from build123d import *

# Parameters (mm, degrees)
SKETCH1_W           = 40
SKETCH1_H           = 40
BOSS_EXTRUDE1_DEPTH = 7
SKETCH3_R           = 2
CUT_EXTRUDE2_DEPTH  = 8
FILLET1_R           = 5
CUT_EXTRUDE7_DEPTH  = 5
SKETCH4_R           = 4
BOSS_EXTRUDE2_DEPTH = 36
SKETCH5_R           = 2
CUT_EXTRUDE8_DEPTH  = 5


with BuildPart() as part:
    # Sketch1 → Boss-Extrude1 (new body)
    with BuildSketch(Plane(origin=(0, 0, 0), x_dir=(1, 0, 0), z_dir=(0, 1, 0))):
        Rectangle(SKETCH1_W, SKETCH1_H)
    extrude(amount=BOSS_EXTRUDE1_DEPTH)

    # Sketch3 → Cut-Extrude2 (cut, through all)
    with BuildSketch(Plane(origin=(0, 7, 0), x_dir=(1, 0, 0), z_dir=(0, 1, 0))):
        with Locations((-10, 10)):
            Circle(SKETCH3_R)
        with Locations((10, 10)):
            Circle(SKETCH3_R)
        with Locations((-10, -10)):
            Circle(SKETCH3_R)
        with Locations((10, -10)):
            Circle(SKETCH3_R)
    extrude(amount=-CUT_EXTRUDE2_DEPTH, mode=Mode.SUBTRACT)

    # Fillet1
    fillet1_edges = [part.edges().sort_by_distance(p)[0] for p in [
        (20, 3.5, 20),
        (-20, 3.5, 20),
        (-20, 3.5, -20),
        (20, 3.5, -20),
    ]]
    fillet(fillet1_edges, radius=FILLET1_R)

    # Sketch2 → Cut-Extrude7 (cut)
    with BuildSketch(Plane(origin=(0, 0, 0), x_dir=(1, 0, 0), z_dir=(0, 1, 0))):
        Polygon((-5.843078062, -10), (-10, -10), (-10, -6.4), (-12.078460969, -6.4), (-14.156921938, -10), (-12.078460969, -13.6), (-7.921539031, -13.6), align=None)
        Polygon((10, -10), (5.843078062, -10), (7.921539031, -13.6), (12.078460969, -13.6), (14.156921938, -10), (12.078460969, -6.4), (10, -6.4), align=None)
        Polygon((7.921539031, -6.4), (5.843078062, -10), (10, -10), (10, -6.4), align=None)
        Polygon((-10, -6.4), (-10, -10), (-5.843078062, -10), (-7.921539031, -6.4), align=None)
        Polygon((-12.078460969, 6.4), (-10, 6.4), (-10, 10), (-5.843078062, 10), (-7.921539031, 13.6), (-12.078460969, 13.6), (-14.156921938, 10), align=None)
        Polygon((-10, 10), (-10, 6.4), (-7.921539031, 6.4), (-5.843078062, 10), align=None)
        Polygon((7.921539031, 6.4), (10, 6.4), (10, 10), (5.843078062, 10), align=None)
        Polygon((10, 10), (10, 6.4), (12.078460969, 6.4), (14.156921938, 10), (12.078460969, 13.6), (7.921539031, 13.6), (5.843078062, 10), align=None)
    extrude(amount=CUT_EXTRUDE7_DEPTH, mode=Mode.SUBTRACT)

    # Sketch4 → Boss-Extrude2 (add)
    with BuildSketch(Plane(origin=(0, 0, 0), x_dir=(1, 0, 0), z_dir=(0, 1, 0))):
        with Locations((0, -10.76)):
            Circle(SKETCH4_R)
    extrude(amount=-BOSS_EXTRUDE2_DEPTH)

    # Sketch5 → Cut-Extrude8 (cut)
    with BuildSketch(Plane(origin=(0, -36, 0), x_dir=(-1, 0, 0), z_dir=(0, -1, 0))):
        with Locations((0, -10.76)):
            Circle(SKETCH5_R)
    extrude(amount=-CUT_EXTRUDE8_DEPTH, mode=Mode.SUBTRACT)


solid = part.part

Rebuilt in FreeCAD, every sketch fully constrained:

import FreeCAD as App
import Part
import Sketcher

V = App.Vector
Q = App.Units.Quantity


def edges_at(feature, points):
    """Names of the edges that pass closest to the given points."""
    edges = feature.Shape.Edges
    near = lambda p: min(range(len(edges)), key=lambda i: edges[i].distToShape(Part.Vertex(*p))[0])
    return sorted({f"Edge{near(p) + 1}" for p in points})


def add_polygon(sketch, points):
    """Adds a closed chain of lines whose ends are joined by coincident constraints."""
    first, n = sketch.GeometryCount, len(points)
    for a, b in zip(points, points[1:] + points[:1]):
        sketch.addGeometry(Part.LineSegment(App.Vector(*a, 0), App.Vector(*b, 0)), False)
    for i in range(n):
        sketch.addConstraint(Sketcher.Constraint("Coincident", first + i, 2, first + (i + 1) % n, 1))

doc = App.newDocument("Part")
params = doc.addObject("Spreadsheet::Sheet", "Params")
for row, (alias, value) in enumerate([
    ("sketch1_width", "40 mm"),
    ("pad1_length", "7 mm"),
    ("sketch2_diameter", "4 mm"),
    ("fillet_radius", "5 mm"),
    ("pocket2_length", "5 mm"),
    ("sketch4_diameter", "8 mm"),
    ("pad2_length", "36 mm"),
    ("sketch5_diameter", "4 mm"),
    ("pocket3_length", "5 mm"),
], start=1):
    params.set(f"A{row}", alias)
    params.set(f"B{row}", "=" + value)
    params.setAlias(f"B{row}", alias)

body = doc.addObject("PartDesign::Body", "Body")

# Sketch on XZ plane
sketch1 = body.newObject("Sketcher::SketchObject", "Sketch")
sketch1.AttachmentSupport = (doc.getObject("XZ_Plane"), [""])
sketch1.MapMode = "FlatFace"
add_polygon(sketch1, [(-20, -20), (-20, 20), (20, 20), (20, -20)])  # lines 0-3
sketch1.addConstraint([
    Sketcher.Constraint("Vertical", 0),
    Sketcher.Constraint("Horizontal", 1),
    Sketcher.Constraint("Vertical", 2),
    Sketcher.Constraint("Horizontal", 3),
    Sketcher.Constraint("Symmetric", 0, 2, 2, 2, -1, 1),
    Sketcher.Constraint("Equal", 3, 0),
    Sketcher.Constraint("DistanceX", 1, 1, 1, 2, Q("40 mm")),
])
sketch1.setExpression("Constraints[10]", "Params.sketch1_width")
pad1 = body.newObject("PartDesign::Pad", "Pad")
pad1.Profile = sketch1
pad1.setExpression("Length", "Params.pad1_length")
pad1.Reversed = True

# Sketch on XZ plane
sketch2 = body.newObject("Sketcher::SketchObject", "Sketch001")
sketch2.AttachmentSupport = (doc.getObject("XZ_Plane"), [""])
sketch2.MapMode = "FlatFace"
sketch2.AttachmentOffset = App.Placement(V(0, 0, -7), App.Rotation())
sketch2.addGeometry([
    Part.Circle(V(-10, -10, 0), V(0, 0, 1), 2),
    Part.Circle(V(10, -10, 0), V(0, 0, 1), 2),
    Part.Circle(V(-10, 10, 0), V(0, 0, 1), 2),
    Part.Circle(V(10, 10, 0), V(0, 0, 1), 2),
], False)
sketch2.addConstraint([
    Sketcher.Constraint("Equal", 0, 1),
    Sketcher.Constraint("Equal", 1, 2),
    Sketcher.Constraint("Equal", 2, 3),
    Sketcher.Constraint("Symmetric", 1, 3, 2, 3, -1, 1),
    Sketcher.Constraint("Symmetric", 0, 3, 3, 3, -1, 1),
    Sketcher.Constraint("Symmetric", 0, 3, 1, 3, -2),
    Sketcher.Constraint("Diameter", 0, Q("4 mm")),
    Sketcher.Constraint("DistanceX", 0, 3, -1, 1, Q("10 mm")),
    Sketcher.Constraint("DistanceY", 0, 3, -1, 1, Q("10 mm")),
])
sketch2.setExpression("Constraints[6]", "Params.sketch2_diameter")
pocket1 = body.newObject("PartDesign::Pocket", "Pocket")
pocket1.Profile = sketch2
pocket1.Type = "ThroughAll"
pocket1.Reversed = True
doc.recompute()

fillet = body.newObject("PartDesign::Fillet", "Fillet")
fillet.Base = (pocket1, edges_at(pocket1, [
    (20, 3.5, 20),
    (-20, 3.5, 20),
    (-20, 3.5, -20),
    (20, 3.5, -20),
]))
fillet.setExpression("Radius", "Params.fillet_radius")

# Sketch on XZ plane
sketch3 = body.newObject("Sketcher::SketchObject", "Sketch002")
sketch3.AttachmentSupport = (doc.getObject("XZ_Plane"), [""])
sketch3.MapMode = "FlatFace"
add_polygon(sketch3, [(-12.078461, 6.4), (-14.156922, 10), (-12.078461, 13.6), (-7.921539, 13.6), (-5.843078, 10), (-7.921539, 6.4)])  # lines 0-5
add_polygon(sketch3, [(5.843078, 10), (7.921539, 13.6), (12.078461, 13.6), (14.156922, 10), (12.078461, 6.4), (7.921539, 6.4)])  # lines 6-11
add_polygon(sketch3, [(-12.078461, -6.4), (-7.921539, -6.4), (-5.843078, -10), (-7.921539, -13.6), (-12.078461, -13.6), (-14.156922, -10)])  # lines 12-17
add_polygon(sketch3, [(7.921539, -6.4), (12.078461, -6.4), (14.156922, -10), (12.078461, -13.6), (7.921539, -13.6), (5.843078, -10)])  # lines 18-23
sketch3.addConstraint([
    Sketcher.Constraint("Horizontal", 2),
    Sketcher.Constraint("Horizontal", 5),
    Sketcher.Constraint("Horizontal", 7),
    Sketcher.Constraint("Horizontal", 10),
    Sketcher.Constraint("Horizontal", 12),
    Sketcher.Constraint("Horizontal", 15),
    Sketcher.Constraint("Horizontal", 18),
    Sketcher.Constraint("Horizontal", 21),
    Sketcher.Constraint("Symmetric", 10, 2, 12, 2, -1, 1),
    Sketcher.Constraint("Symmetric", 11, 2, 13, 2, -1, 1),
    Sketcher.Constraint("Symmetric", 6, 2, 14, 2, -1, 1),
    Sketcher.Constraint("Symmetric", 8, 2, 16, 2, -1, 1),
    Sketcher.Constraint("Symmetric", 5, 2, 18, 2, -1, 1),
    Sketcher.Constraint("Symmetric", 0, 2, 19, 2, -1, 1),
    Sketcher.Constraint("Symmetric", 1, 2, 20, 2, -1, 1),
    Sketcher.Constraint("Symmetric", 3, 2, 22, 2, -1, 1),
    Sketcher.Constraint("Symmetric", 2, 2, 6, 2, -2),
    Sketcher.Constraint("Symmetric", 0, 2, 8, 2, -2),
    Sketcher.Constraint("Symmetric", 5, 2, 9, 2, -2),
    Sketcher.Constraint("Symmetric", 3, 2, 11, 2, -2),
    Sketcher.Constraint("Parallel", 0, 3),
    Sketcher.Constraint("Parallel", 1, 4),
    Sketcher.Constraint("Parallel", 4, 6),
    Sketcher.Constraint("Parallel", 3, 8),
    Sketcher.Constraint("Parallel", 8, 11),
    Sketcher.Constraint("Parallel", 13, 16),
    Sketcher.Constraint("Parallel", 14, 17),
    Sketcher.Constraint("Parallel", 19, 22),
    Sketcher.Constraint("Parallel", 20, 23),
    Sketcher.Constraint("Horizontal", 0, 2, 3, 2),
    Sketcher.Constraint("Vertical", 2, 2, 4, 2),
    Sketcher.Constraint("Angle", 0, Q("120 deg")),
    Sketcher.Constraint("DistanceY", -1, 1, 0, 2, Q("10 mm")),
    Sketcher.Constraint("DistanceX", 1, 2, 6, 2, Q("20 mm")),
    Sketcher.Constraint("DistanceY", -1, 1, 1, 2, Q("13.6 mm")),
    Sketcher.Constraint("DistanceX", 2, 1, 2, 2, Q("4.156922 mm")),
])
pocket2 = body.newObject("PartDesign::Pocket", "Pocket001")
pocket2.Profile = sketch3
pocket2.setExpression("Length", "Params.pocket2_length")

# Sketch on XZ plane
sketch4 = body.newObject("Sketcher::SketchObject", "Sketch003")
sketch4.AttachmentSupport = (doc.getObject("XZ_Plane"), [""])
sketch4.MapMode = "FlatFace"
sketch4.addGeometry(Part.Circle(V(0, 10.76, 0), V(0, 0, 1), 4), False)
sketch4.addConstraint([
    Sketcher.Constraint("PointOnObject", 0, 3, -2),
    Sketcher.Constraint("Diameter", 0, Q("8 mm")),
    Sketcher.Constraint("DistanceY", -1, 1, 0, 3, Q("10.76 mm")),
])
sketch4.setExpression("Constraints[1]", "Params.sketch4_diameter")
pad2 = body.newObject("PartDesign::Pad", "Pad001")
pad2.Profile = sketch4
pad2.setExpression("Length", "Params.pad2_length")

# Sketch on XZ plane
sketch5 = body.newObject("Sketcher::SketchObject", "Sketch004")
sketch5.AttachmentSupport = (doc.getObject("XZ_Plane"), [""])
sketch5.MapMode = "FlatFace"
sketch5.AttachmentOffset = App.Placement(V(0, 0, 36), App.Rotation())
sketch5.addGeometry(Part.Circle(V(0, 10.76, 0), V(0, 0, 1), 2), False)
sketch5.addConstraint([
    Sketcher.Constraint("PointOnObject", 0, 3, -2),
    Sketcher.Constraint("Diameter", 0, Q("4 mm")),
    Sketcher.Constraint("DistanceY", -1, 1, 0, 3, Q("10.76 mm")),
])
sketch5.setExpression("Constraints[1]", "Params.sketch5_diameter")
pocket3 = body.newObject("PartDesign::Pocket", "Pocket002")
pocket3.Profile = sketch5
pocket3.setExpression("Length", "Params.pocket3_length")

doc.recompute()
